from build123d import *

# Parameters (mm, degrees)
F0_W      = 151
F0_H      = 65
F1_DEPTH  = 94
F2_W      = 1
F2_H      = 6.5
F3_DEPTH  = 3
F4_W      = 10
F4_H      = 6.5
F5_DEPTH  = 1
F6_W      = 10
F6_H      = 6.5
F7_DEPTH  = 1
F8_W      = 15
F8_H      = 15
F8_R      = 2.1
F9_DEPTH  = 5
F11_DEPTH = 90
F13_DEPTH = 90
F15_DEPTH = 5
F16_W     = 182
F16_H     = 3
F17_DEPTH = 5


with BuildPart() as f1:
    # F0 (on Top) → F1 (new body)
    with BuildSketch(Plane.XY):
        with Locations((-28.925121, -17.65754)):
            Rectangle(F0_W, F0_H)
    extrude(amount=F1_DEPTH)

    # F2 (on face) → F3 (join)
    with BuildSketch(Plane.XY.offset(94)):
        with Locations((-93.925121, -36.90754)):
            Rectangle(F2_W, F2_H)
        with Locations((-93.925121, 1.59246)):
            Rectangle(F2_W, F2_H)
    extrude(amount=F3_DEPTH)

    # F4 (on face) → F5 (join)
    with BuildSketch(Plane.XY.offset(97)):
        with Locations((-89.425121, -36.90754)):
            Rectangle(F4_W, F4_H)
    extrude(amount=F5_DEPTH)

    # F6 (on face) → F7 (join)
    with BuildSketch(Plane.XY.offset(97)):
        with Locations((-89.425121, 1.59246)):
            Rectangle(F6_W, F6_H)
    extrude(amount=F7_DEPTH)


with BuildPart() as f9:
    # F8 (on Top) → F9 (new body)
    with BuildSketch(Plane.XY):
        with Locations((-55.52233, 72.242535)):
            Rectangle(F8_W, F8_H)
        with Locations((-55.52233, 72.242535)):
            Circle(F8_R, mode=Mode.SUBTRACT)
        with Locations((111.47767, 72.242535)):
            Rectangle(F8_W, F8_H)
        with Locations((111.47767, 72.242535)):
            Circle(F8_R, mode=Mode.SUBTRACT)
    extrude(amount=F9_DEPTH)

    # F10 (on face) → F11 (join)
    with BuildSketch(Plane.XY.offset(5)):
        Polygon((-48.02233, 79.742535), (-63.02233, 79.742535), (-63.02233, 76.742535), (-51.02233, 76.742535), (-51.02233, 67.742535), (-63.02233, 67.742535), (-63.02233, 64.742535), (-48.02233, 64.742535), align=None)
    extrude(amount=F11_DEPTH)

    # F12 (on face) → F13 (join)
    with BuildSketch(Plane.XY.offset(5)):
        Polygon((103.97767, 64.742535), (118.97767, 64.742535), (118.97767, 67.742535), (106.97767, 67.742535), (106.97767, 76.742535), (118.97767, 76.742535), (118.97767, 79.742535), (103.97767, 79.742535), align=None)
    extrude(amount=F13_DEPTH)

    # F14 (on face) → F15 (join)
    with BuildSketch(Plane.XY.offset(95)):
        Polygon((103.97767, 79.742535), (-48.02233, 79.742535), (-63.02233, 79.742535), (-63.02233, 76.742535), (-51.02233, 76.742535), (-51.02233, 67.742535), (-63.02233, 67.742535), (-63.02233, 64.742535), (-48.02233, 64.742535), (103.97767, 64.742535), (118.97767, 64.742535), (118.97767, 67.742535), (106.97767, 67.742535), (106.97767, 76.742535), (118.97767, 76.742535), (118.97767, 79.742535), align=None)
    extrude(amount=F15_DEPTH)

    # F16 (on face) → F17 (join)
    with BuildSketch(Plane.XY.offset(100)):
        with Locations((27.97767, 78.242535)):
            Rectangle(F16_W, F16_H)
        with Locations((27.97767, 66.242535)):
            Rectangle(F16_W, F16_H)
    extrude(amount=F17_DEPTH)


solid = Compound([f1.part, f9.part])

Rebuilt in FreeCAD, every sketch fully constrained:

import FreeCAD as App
import Part
import Sketcher

V = App.Vector
Q = App.Units.Quantity

doc = App.newDocument("Part")
body = doc.addObject("PartDesign::Body", "Body")

sketch1 = body.newObject("Sketcher::SketchObject", "Sketch")
sketch1.AttachmentSupport = (doc.getObject("XY_Plane"), [""])
sketch1.MapMode = "FlatFace"
sketch1.addGeometry([
    Part.LineSegment(V(-104.425121, 14.84246, 0), V(-104.425121, -50.15754, 0)),
    Part.LineSegment(V(-104.425121, -50.15754, 0), V(46.574879, -50.15754, 0)),
    Part.LineSegment(V(46.574879, -50.15754, 0), V(46.574879, 14.84246, 0)),
    Part.LineSegment(V(46.574879, 14.84246, 0), V(-104.425121, 14.84246, 0)),
], False)
sketch1.addConstraint([
    Sketcher.Constraint("Coincident", 0, 2, 1, 1),
    Sketcher.Constraint("Coincident", 1, 2, 2, 1),
    Sketcher.Constraint("Coincident", 2, 2, 3, 1),
    Sketcher.Constraint("Coincident", 3, 2, 0, 1),
    Sketcher.Constraint("Vertical", 0),
    Sketcher.Constraint("Horizontal", 1),
    Sketcher.Constraint("Vertical", 2),
    Sketcher.Constraint("Horizontal", 3),
    Sketcher.Constraint("DistanceX", 1, 1, 1, 2, Q("151 mm")),
    Sketcher.Constraint("DistanceY", 0, 2, 0, 1, Q("65 mm")),
    Sketcher.Constraint("DistanceX", 0, 2, -1, 1, Q("104.425121 mm")),
    Sketcher.Constraint("DistanceY", 0, 2, -1, 1, Q("50.15754 mm")),
])
pad1 = body.newObject("PartDesign::Pad", "Pad")
pad1.Profile = sketch1
pad1.Length = 94

sketch2 = body.newObject("Sketcher::SketchObject", "Sketch001")
sketch2.AttachmentSupport = (doc.getObject("XY_Plane"), [""])
sketch2.MapMode = "FlatFace"
sketch2.AttachmentOffset = App.Placement(V(0, 0, 94), App.Rotation())
sketch2.addGeometry([
    Part.LineSegment(V(-94.425121, -33.65754, 0), V(-94.425121, -40.15754, 0)),
    Part.LineSegment(V(-94.425121, -40.15754, 0), V(-93.425121, -40.15754, 0)),
    Part.LineSegment(V(-93.425121, -40.15754, 0), V(-93.425121, -33.65754, 0)),
    Part.LineSegment(V(-93.425121, -33.65754, 0), V(-94.425121, -33.65754, 0)),
    Part.LineSegment(V(-94.425121, 4.84246, 0), V(-94.425121, -1.65754, 0)),
    Part.LineSegment(V(-94.425121, -1.65754, 0), V(-93.425121, -1.65754, 0)),
    Part.LineSegment(V(-93.425121, -1.65754, 0), V(-93.425121, 4.84246, 0)),
    Part.LineSegment(V(-93.425121, 4.84246, 0), V(-94.425121, 4.84246, 0)),
], False)
sketch2.addConstraint([
    Sketcher.Constraint("Coincident", 0, 2, 1, 1),
    Sketcher.Constraint("Coincident", 1, 2, 2, 1),
    Sketcher.Constraint("Coincident", 2, 2, 3, 1),
    Sketcher.Constraint("Coincident", 3, 2, 0, 1),
    Sketcher.Constraint("Coincident", 4, 2, 5, 1),
    Sketcher.Constraint("Coincident", 5, 2, 6, 1),
    Sketcher.Constraint("Coincident", 6, 2, 7, 1),
    Sketcher.Constraint("Coincident", 7, 2, 4, 1),
    Sketcher.Constraint("Vertical", 0),
    Sketcher.Constraint("Horizontal", 1),
    Sketcher.Constraint("Vertical", 2),
    Sketcher.Constraint("Horizontal", 3),
    Sketcher.Constraint("Vertical", 4),
    Sketcher.Constraint("Horizontal", 5),
    Sketcher.Constraint("Vertical", 6),
    Sketcher.Constraint("Horizontal", 7),
    Sketcher.Constraint("Vertical", 3, 2, 4, 2),
    Sketcher.Constraint("Vertical", 2, 2, 5, 2),
    Sketcher.Constraint("Equal", 2, 4),
    Sketcher.Constraint("DistanceX", 1, 1, 1, 2, Q("1 mm")),
    Sketcher.Constraint("DistanceY", 0, 2, 0, 1, Q("6.5 mm")),
    Sketcher.Constraint("DistanceY", 3, 2, 4, 2, Q("32 mm")),
    Sketcher.Constraint("DistanceX", 0, 2, -1, 1, Q("94.425121 mm")),
    Sketcher.Constraint("DistanceY", 0, 2, -1, 1, Q("40.15754 mm")),
])
pad2 = body.newObject("PartDesign::Pad", "Pad001")
pad2.Profile = sketch2
pad2.Length = 3

sketch3 = body.newObject("Sketcher::SketchObject", "Sketch002")
sketch3.AttachmentSupport = (doc.getObject("XY_Plane"), [""])
sketch3.MapMode = "FlatFace"
sketch3.AttachmentOffset = App.Placement(V(0, 0, 97), App.Rotation())
sketch3.addGeometry([
    Part.LineSegment(V(-94.425121, -33.65754, 0), V(-94.425121, -40.15754, 0)),
    Part.LineSegment(V(-94.425121, -40.15754, 0), V(-84.425121, -40.15754, 0)),
    Part.LineSegment(V(-84.425121, -40.15754, 0), V(-84.425121, -33.65754, 0)),
    Part.LineSegment(V(-84.425121, -33.65754, 0), V(-94.425121, -33.65754, 0)),
], False)
sketch3.addConstraint([
    Sketcher.Constraint("Coincident", 0, 2, 1, 1),
    Sketcher.Constraint("Coincident", 1, 2, 2, 1),
    Sketcher.Constraint("Coincident", 2, 2, 3, 1),
    Sketcher.Constraint("Coincident", 3, 2, 0, 1),
    Sketcher.Constraint("Vertical", 0),
    Sketcher.Constraint("Horizontal", 1),
    Sketcher.Constraint("Vertical", 2),
    Sketcher.Constraint("Horizontal", 3),
    Sketcher.Constraint("DistanceX", 1, 1, 1, 2, Q("10 mm")),
    Sketcher.Constraint("DistanceY", 0, 2, 0, 1, Q("6.5 mm")),
    Sketcher.Constraint("DistanceX", 0, 2, -1, 1, Q("94.425121 mm")),
    Sketcher.Constraint("DistanceY", 0, 2, -1, 1, Q("40.15754 mm")),
])
pad3 = body.newObject("PartDesign::Pad", "Pad002")
pad3.Profile = sketch3
pad3.Length = 1

sketch4 = body.newObject("Sketcher::SketchObject", "Sketch003")
sketch4.AttachmentSupport = (doc.getObject("XY_Plane"), [""])
sketch4.MapMode = "FlatFace"
sketch4.AttachmentOffset = App.Placement(V(0, 0, 97), App.Rotation())
sketch4.addGeometry([
    Part.LineSegment(V(-94.425121, 4.84246, 0), V(-94.425121, -1.65754, 0)),
    Part.LineSegment(V(-94.425121, -1.65754, 0), V(-84.425121, -1.65754, 0)),
    Part.LineSegment(V(-84.425121, -1.65754, 0), V(-84.425121, 4.84246, 0)),
    Part.LineSegment(V(-84.425121, 4.84246, 0), V(-94.425121, 4.84246, 0)),
], False)
sketch4.addConstraint([
    Sketcher.Constraint("Coincident", 0, 2, 1, 1),
    Sketcher.Constraint("Coincident", 1, 2, 2, 1),
    Sketcher.Constraint("Coincident", 2, 2, 3, 1),
    Sketcher.Constraint("Coincident", 3, 2, 0, 1),
    Sketcher.Constraint("Vertical", 0),
    Sketcher.Constraint("Horizontal", 1),
    Sketcher.Constraint("Vertical", 2),
    Sketcher.Constraint("Horizontal", 3),
    Sketcher.Constraint("DistanceX", 1, 1, 1, 2, Q("10 mm")),
    Sketcher.Constraint("DistanceY", 0, 2, 0, 1, Q("6.5 mm")),
    Sketcher.Constraint("DistanceX", 0, 2, -1, 1, Q("94.425121 mm")),
    Sketcher.Constraint("DistanceY", 0, 2, -1, 1, Q("1.65754 mm")),
])
pad4 = body.newObject("PartDesign::Pad", "Pad003")
pad4.Profile = sketch4
pad4.Length = 1
body2 = doc.addObject("PartDesign::Body", "Body001")
body2.AllowCompound = True

sketch5 = body2.newObject("Sketcher::SketchObject", "Sketch004")
sketch5.AttachmentSupport = (doc.getObject("XY_Plane001"), [""])
sketch5.MapMode = "FlatFace"
sketch5.addGeometry([
    Part.LineSegment(V(-63.02233, 79.742535, 0), V(-63.02233, 64.742535, 0)),
    Part.LineSegment(V(-63.02233, 64.742535, 0), V(-48.02233, 64.742535, 0)),
    Part.LineSegment(V(-48.02233, 64.742535, 0), V(-48.02233, 79.742535, 0)),
    Part.LineSegment(V(-48.02233, 79.742535, 0), V(-63.02233, 79.742535, 0)),
    Part.Circle(V(-55.52233, 72.242535, 0), V(0, 0, 1), 2.1),
    Part.LineSegment(V(103.97767, 79.742535, 0), V(103.97767, 64.742535, 0)),
    Part.LineSegment(V(103.97767, 64.742535, 0), V(118.97767, 64.742535, 0)),
    Part.LineSegment(V(118.97767, 64.742535, 0), V(118.97767, 79.742535, 0)),
    Part.LineSegment(V(118.97767, 79.742535, 0), V(103.97767, 79.742535, 0)),
    Part.Circle(V(111.47767, 72.242535, 0), V(0, 0, 1), 2.1),
], False)
sketch5.addConstraint([
    Sketcher.Constraint("Coincident", 0, 2, 1, 1),
    Sketcher.Constraint("Coincident", 1, 2, 2, 1),
    Sketcher.Constraint("Coincident", 2, 2, 3, 1),
    Sketcher.Constraint("Coincident", 3, 2, 0, 1),
    Sketcher.Constraint("Coincident", 5, 2, 6, 1),
    Sketcher.Constraint("Coincident", 6, 2, 7, 1),
    Sketcher.Constraint("Coincident", 7, 2, 8, 1),
    Sketcher.Constraint("Coincident", 8, 2, 5, 1),
    Sketcher.Constraint("Vertical", 0),
    Sketcher.Constraint("Horizontal", 1),
    Sketcher.Constraint("Vertical", 2),
    Sketcher.Constraint("Horizontal", 3),
    Sketcher.Constraint("Vertical", 5),
    Sketcher.Constraint("Horizontal", 6),
    Sketcher.Constraint("Vertical", 7),
    Sketcher.Constraint("Horizontal", 8),
    Sketcher.Constraint("Equal", 4, 9),
    Sketcher.Constraint("Horizontal", 4, 3, 9, 3),
    Sketcher.Constraint("Horizontal", 1, 2, 5, 2),
    Sketcher.Constraint("Horizontal", 3, 2, 7, 2),
    Sketcher.Constraint("Equal", 3, 6),
    Sketcher.Constraint("Equal", 8, 0),
    Sketcher.Constraint("Diameter", 4, Q("4.2 mm")),
    Sketcher.Constraint("DistanceX", 1, 1, 1, 2, Q("15 mm")),
    Sketcher.Constraint("DistanceX", 4, 3, 9, 3, Q("167 mm")),
    Sketcher.Constraint("DistanceX", 1, 2, 5, 2, Q("152 mm")),
    Sketcher.Constraint("DistanceX", 0, 2, 4, 3, Q("7.5 mm")),
    Sketcher.Constraint("DistanceY", 0, 2, 4, 3, Q("7.5 mm")),
    Sketcher.Constraint("DistanceX", 4, 3, -1, 1, Q("55.52233 mm")),
    Sketcher.Constraint("DistanceY", -1, 1, 4, 3, Q("72.242535 mm")),
])
pad5 = body2.newObject("PartDesign::Pad", "Pad004")
pad5.Profile = sketch5
pad5.Length = 5

sketch6 = body2.newObject("Sketcher::SketchObject", "Sketch005")
sketch6.AttachmentSupport = (doc.getObject("XY_Plane001"), [""])
sketch6.MapMode = "FlatFace"
sketch6.AttachmentOffset = App.Placement(V(0, 0, 5), App.Rotation())
sketch6.addGeometry([
    Part.LineSegment(V(-48.02233, 79.742535, 0), V(-63.02233, 79.742535, 0)),
    Part.LineSegment(V(-63.02233, 79.742535, 0), V(-63.02233, 76.742535, 0)),
    Part.LineSegment(V(-63.02233, 76.742535, 0), V(-51.02233, 76.742535, 0)),
    Part.LineSegment(V(-51.02233, 76.742535, 0), V(-51.02233, 67.742535, 0)),
    Part.LineSegment(V(-51.02233, 67.742535, 0), V(-63.02233, 67.742535, 0)),
    Part.LineSegment(V(-63.02233, 67.742535, 0), V(-63.02233, 64.742535, 0)),
    Part.LineSegment(V(-63.02233, 64.742535, 0), V(-48.02233, 64.742535, 0)),
    Part.LineSegment(V(-48.02233, 64.742535, 0), V(-48.02233, 79.742535, 0)),
], False)
sketch6.addConstraint([
    Sketcher.Constraint("Coincident", 0, 2, 1, 1),
    Sketcher.Constraint("Coincident", 1, 2, 2, 1),
    Sketcher.Constraint("Coincident", 2, 2, 3, 1),
    Sketcher.Constraint("Coincident", 3, 2, 4, 1),
    Sketcher.Constraint("Coincident", 4, 2, 5, 1),
    Sketcher.Constraint("Coincident", 5, 2, 6, 1),
    Sketcher.Constraint("Coincident", 6, 2, 7, 1),
    Sketcher.Constraint("Coincident", 7, 2, 0, 1),
    Sketcher.Constraint("Horizontal", 0),
    Sketcher.Constraint("Vertical", 1),
    Sketcher.Constraint("Horizontal", 2),
    Sketcher.Constraint("Vertical", 3),
    Sketcher.Constraint("Horizontal", 4),
    Sketcher.Constraint("Vertical", 5),
    Sketcher.Constraint("Horizontal", 6),
    Sketcher.Constraint("Vertical", 7),
    Sketcher.Constraint("Vertical", 1, 2, 4, 2),
    Sketcher.Constraint("Equal", 1, 5),
    Sketcher.Constraint("Equal", 6, 7),
    Sketcher.Constraint("DistanceX", 0, 2, 0, 1, Q("15 mm")),
    Sketcher.Constraint("DistanceX", 2, 1, 2, 2, Q("12 mm")),
    Sketcher.Constraint("DistanceY", 1, 2, 1, 1, Q("3 mm")),
    Sketcher.Constraint("DistanceX", 0, 2, -1, 1, Q("63.02233 mm")),
    Sketcher.Constraint("DistanceY", -1, 1, 0, 2, Q("79.742535 mm")),
])
pad6 = body2.newObject("PartDesign::Pad", "Pad005")
pad6.Profile = sketch6
pad6.Length = 90

sketch7 = body2.newObject("Sketcher::SketchObject", "Sketch006")
sketch7.AttachmentSupport = (doc.getObject("XY_Plane001"), [""])
sketch7.MapMode = "FlatFace"
sketch7.AttachmentOffset = App.Placement(V(0, 0, 5), App.Rotation())
sketch7.addGeometry([
    Part.LineSegment(V(103.97767, 64.742535, 0), V(118.97767, 64.742535, 0)),
    Part.LineSegment(V(118.97767, 64.742535, 0), V(118.97767, 67.742535, 0)),
    Part.LineSegment(V(118.97767, 67.742535, 0), V(106.97767, 67.742535, 0)),
    Part.LineSegment(V(106.97767, 67.742535, 0), V(106.97767, 76.742535, 0)),
    Part.LineSegment(V(106.97767, 76.742535, 0), V(118.97767, 76.742535, 0)),
    Part.LineSegment(V(118.97767, 76.742535, 0), V(118.97767, 79.742535, 0)),
    Part.LineSegment(V(118.97767, 79.742535, 0), V(103.97767, 79.742535, 0)),
    Part.LineSegment(V(103.97767, 79.742535, 0), V(103.97767, 64.742535, 0)),
], False)
sketch7.addConstraint([
    Sketcher.Constraint("Coincident", 0, 2, 1, 1),
    Sketcher.Constraint("Coincident", 1, 2, 2, 1),
    Sketcher.Constraint("Coincident", 2, 2, 3, 1),
    Sketcher.Constraint("Coincident", 3, 2, 4, 1),
    Sketcher.Constraint("Coincident", 4, 2, 5, 1),
    Sketcher.Constraint("Coincident", 5, 2, 6, 1),
    Sketcher.Constraint("Coincident", 6, 2, 7, 1),
    Sketcher.Constraint("Coincident", 7, 2, 0, 1),
    Sketcher.Constraint("Horizontal", 0),
    Sketcher.Constraint("Vertical", 1),
    Sketcher.Constraint("Horizontal", 2),
    Sketcher.Constraint("Vertical", 3),
    Sketcher.Constraint("Horizontal", 4),
    Sketcher.Constraint("Vertical", 5),
    Sketcher.Constraint("Horizontal", 6),
    Sketcher.Constraint("Vertical", 7),
    Sketcher.Constraint("Vertical", 1, 2, 4, 2),
    Sketcher.Constraint("Equal", 1, 5),
    Sketcher.Constraint("Equal", 6, 7),
    Sketcher.Constraint("DistanceX", 0, 1, 0, 2, Q("15 mm")),
    Sketcher.Constraint("DistanceX", 2, 2, 2, 1, Q("12 mm")),
    Sketcher.Constraint("DistanceY", 1, 1, 1, 2, Q("3 mm")),
    Sketcher.Constraint("DistanceX", -1, 1, 0, 2, Q("118.97767 mm")),
    Sketcher.Constraint("DistanceY", -1, 1, 0, 2, Q("64.742535 mm")),
])
pad7 = body2.newObject("PartDesign::Pad", "Pad006")
pad7.Profile = sketch7
pad7.Length = 90

sketch8 = body2.newObject("Sketcher::SketchObject", "Sketch007")
sketch8.AttachmentSupport = (doc.getObject("XY_Plane001"), [""])
sketch8.MapMode = "FlatFace"
sketch8.AttachmentOffset = App.Placement(V(0, 0, 95), App.Rotation())
sketch8.addGeometry([
    Part.LineSegment(V(-63.02233, 79.742535, 0), V(-63.02233, 76.742535, 0)),
    Part.LineSegment(V(-63.02233, 76.742535, 0), V(-51.02233, 76.742535, 0)),
    Part.LineSegment(V(-51.02233, 76.742535, 0), V(-51.02233, 67.742535, 0)),
    Part.LineSegment(V(-51.02233, 67.742535, 0), V(-63.02233, 67.742535, 0)),
    Part.LineSegment(V(-63.02233, 67.742535, 0), V(-63.02233, 64.742535, 0)),
    Part.LineSegment(V(-63.02233, 64.742535, 0), V(118.97767, 64.742535, 0)),
    Part.LineSegment(V(118.97767, 64.742535, 0), V(118.97767, 67.742535, 0)),
    Part.LineSegment(V(118.97767, 67.742535, 0), V(106.97767, 67.742535, 0)),
    Part.LineSegment(V(106.97767, 67.742535, 0), V(106.97767, 76.742535, 0)),
    Part.LineSegment(V(106.97767, 76.742535, 0), V(118.97767, 76.742535, 0)),
    Part.LineSegment(V(118.97767, 76.742535, 0), V(118.97767, 79.742535, 0)),
    Part.LineSegment(V(118.97767, 79.742535, 0), V(-63.02233, 79.742535, 0)),
], False)
sketch8.addConstraint([
    Sketcher.Constraint("Coincident", 0, 2, 1, 1),
    Sketcher.Constraint("Coincident", 1, 2, 2, 1),
    Sketcher.Constraint("Coincident", 2, 2, 3, 1),
    Sketcher.Constraint("Coincident", 3, 2, 4, 1),
    Sketcher.Constraint("Coincident", 4, 2, 5, 1),
    Sketcher.Constraint("Coincident", 5, 2, 6, 1),
    Sketcher.Constraint("Coincident", 6, 2, 7, 1),
    Sketcher.Constraint("Coincident", 7, 2, 8, 1),
    Sketcher.Constraint("Coincident", 8, 2, 9, 1),
    Sketcher.Constraint("Coincident", 9, 2, 10, 1),
    Sketcher.Constraint("Coincident", 10, 2, 11, 1),
    Sketcher.Constraint("Coincident", 11, 2, 0, 1),
    Sketcher.Constraint("Vertical", 0),
    Sketcher.Constraint("Horizontal", 1),
    Sketcher.Constraint("Vertical", 2),
    Sketcher.Constraint("Horizontal", 3),
    Sketcher.Constraint("Vertical", 4),
    Sketcher.Constraint("Horizontal", 5),
    Sketcher.Constraint("Vertical", 6),
    Sketcher.Constraint("Horizontal", 7),
    Sketcher.Constraint("Vertical", 8),
    Sketcher.Constraint("Horizontal", 9),
    Sketcher.Constraint("Vertical", 10),
    Sketcher.Constraint("Horizontal", 11),
    Sketcher.Constraint("Horizontal", 3, 2, 6, 2),
    Sketcher.Constraint("Horizontal", 1, 2, 8, 2),
    Sketcher.Constraint("Vertical", 0, 2, 3, 2),
    Sketcher.Constraint("Vertical", 6, 2, 9, 2),
    Sketcher.Constraint("Equal", 3, 7),
    Sketcher.Constraint("Equal", 0, 4),
    Sketcher.Constraint("DistanceX", 1, 1, 1, 2, Q("12 mm")),
    Sketcher.Constraint("DistanceX", 5, 1, 5, 2, Q("182 mm")),
    Sketcher.Constraint("DistanceY", 0, 2, 0, 1, Q("3 mm")),
    Sketcher.Constraint("DistanceY", 2, 2, 2, 1, Q("9 mm")),
    Sketcher.Constraint("DistanceX", 0, 2, -1, 1, Q("63.02233 mm")),
    Sketcher.Constraint("DistanceY", -1, 1, 0, 2, Q("76.742535 mm")),
])
pad8 = body2.newObject("PartDesign::Pad", "Pad007")
pad8.Profile = sketch8
pad8.Length = 5

sketch9 = body2.newObject("Sketcher::SketchObject", "Sketch008")
sketch9.AttachmentSupport = (doc.getObject("XY_Plane001"), [""])
sketch9.MapMode = "FlatFace"
sketch9.AttachmentOffset = App.Placement(V(0, 0, 100), App.Rotation())
sketch9.addGeometry([
    Part.LineSegment(V(-63.02233, 79.742535, 0), V(-63.02233, 76.742535, 0)),
    Part.LineSegment(V(-63.02233, 76.742535, 0), V(118.97767, 76.742535, 0)),
    Part.LineSegment(V(118.97767, 76.742535, 0), V(118.97767, 79.742535, 0)),
    Part.LineSegment(V(118.97767, 79.742535, 0), V(-63.02233, 79.742535, 0)),
    Part.LineSegment(V(-63.02233, 67.742535, 0), V(-63.02233, 64.742535, 0)),
    Part.LineSegment(V(-63.02233, 64.742535, 0), V(118.97767, 64.742535, 0)),
    Part.LineSegment(V(118.97767, 64.742535, 0), V(118.97767, 67.742535, 0)),
    Part.LineSegment(V(118.97767, 67.742535, 0), V(-63.02233, 67.742535, 0)),
], False)
sketch9.addConstraint([
    Sketcher.Constraint("Coincident", 0, 2, 1, 1),
    Sketcher.Constraint("Coincident", 1, 2, 2, 1),
    Sketcher.Constraint("Coincident", 2, 2, 3, 1),
    Sketcher.Constraint("Coincident", 3, 2, 0, 1),
    Sketcher.Constraint("Coincident", 4, 2, 5, 1),
    Sketcher.Constraint("Coincident", 5, 2, 6, 1),
    Sketcher.Constraint("Coincident", 6, 2, 7, 1),
    Sketcher.Constraint("Coincident", 7, 2, 4, 1),
    Sketcher.Constraint("Vertical", 0),
    Sketcher.Constraint("Horizontal", 1),
    Sketcher.Constraint("Vertical", 2),
    Sketcher.Constraint("Horizontal", 3),
    Sketcher.Constraint("Vertical", 4),
    Sketcher.Constraint("Horizontal", 5),
    Sketcher.Constraint("Vertical", 6),
    Sketcher.Constraint("Horizontal", 7),
    Sketcher.Constraint("Vertical", 3, 2, 4, 2),
    Sketcher.Constraint("Vertical", 2, 2, 5, 2),
    Sketcher.Constraint("Equal", 2, 4),
    Sketcher.Constraint("DistanceX", 1, 1, 1, 2, Q("182 mm")),
    Sketcher.Constraint("DistanceY", 0, 2, 0, 1, Q("3 mm")),
    Sketcher.Constraint("DistanceY", 4, 2, 0, 2, Q("12 mm")),
    Sketcher.Constraint("DistanceX", 0, 2, -1, 1, Q("63.02233 mm")),
    Sketcher.Constraint("DistanceY", -1, 1, 0, 2, Q("76.742535 mm")),
])
pad9 = body2.newObject("PartDesign::Pad", "Pad008")
pad9.Profile = sketch9
pad9.Length = 5

doc.recompute()
